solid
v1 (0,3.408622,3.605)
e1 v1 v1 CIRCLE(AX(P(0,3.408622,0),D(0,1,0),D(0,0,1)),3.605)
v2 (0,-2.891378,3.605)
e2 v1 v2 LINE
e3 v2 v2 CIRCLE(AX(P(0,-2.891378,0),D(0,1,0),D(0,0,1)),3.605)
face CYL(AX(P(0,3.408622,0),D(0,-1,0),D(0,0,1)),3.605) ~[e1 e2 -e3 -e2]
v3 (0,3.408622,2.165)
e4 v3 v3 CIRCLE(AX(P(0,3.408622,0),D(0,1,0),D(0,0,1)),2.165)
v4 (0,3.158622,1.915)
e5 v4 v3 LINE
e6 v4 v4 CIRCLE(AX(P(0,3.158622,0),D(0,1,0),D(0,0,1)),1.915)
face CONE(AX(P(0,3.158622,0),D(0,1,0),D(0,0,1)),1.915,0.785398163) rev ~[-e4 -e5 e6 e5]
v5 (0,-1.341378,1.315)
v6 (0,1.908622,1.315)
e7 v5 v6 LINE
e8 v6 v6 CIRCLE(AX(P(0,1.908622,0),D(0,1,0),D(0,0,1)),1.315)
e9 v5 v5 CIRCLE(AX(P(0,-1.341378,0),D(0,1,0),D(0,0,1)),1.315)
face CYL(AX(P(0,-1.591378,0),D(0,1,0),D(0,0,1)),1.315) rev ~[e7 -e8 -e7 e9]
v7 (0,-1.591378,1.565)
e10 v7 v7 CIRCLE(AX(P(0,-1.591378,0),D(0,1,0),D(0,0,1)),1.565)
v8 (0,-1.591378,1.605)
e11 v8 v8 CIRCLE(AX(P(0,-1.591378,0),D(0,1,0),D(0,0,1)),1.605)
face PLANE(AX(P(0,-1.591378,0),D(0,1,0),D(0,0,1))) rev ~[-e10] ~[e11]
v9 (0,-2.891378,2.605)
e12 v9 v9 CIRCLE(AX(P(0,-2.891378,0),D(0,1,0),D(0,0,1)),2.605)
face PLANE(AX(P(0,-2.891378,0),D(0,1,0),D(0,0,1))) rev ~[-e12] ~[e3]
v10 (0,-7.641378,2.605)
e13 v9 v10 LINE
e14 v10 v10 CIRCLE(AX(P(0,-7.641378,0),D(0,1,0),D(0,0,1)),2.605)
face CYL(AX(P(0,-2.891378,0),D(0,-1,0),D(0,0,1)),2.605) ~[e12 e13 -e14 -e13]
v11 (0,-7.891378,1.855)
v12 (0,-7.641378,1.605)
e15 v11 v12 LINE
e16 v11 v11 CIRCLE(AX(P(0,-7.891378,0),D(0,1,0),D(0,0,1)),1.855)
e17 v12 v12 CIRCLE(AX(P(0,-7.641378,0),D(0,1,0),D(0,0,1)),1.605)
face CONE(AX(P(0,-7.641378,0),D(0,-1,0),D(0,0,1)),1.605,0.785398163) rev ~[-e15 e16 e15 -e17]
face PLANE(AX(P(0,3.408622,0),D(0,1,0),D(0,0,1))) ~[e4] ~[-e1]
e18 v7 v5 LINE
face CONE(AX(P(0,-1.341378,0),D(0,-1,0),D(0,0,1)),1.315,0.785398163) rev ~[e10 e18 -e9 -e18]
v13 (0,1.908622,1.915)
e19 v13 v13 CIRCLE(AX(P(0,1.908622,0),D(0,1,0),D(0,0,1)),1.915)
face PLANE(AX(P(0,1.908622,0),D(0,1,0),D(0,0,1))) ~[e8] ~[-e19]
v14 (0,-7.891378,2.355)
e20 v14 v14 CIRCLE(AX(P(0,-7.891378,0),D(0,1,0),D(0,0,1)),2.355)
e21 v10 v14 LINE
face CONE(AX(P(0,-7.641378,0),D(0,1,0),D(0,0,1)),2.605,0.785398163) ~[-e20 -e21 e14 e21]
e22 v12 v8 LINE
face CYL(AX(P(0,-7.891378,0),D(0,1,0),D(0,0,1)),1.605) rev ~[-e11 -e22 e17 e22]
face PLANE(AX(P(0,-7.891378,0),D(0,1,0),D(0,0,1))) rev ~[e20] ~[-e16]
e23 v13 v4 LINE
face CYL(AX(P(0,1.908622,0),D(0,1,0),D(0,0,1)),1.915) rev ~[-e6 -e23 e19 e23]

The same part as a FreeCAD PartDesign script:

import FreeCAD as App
import Part
import Sketcher

V = App.Vector
Q = App.Units.Quantity


def edges_at(feature, points):
    """Names of the edges that pass closest to the given points."""
    edges = feature.Shape.Edges
    near = lambda p: min(range(len(edges)), key=lambda i: edges[i].distToShape(Part.Vertex(*p))[0])
    return sorted({f"Edge{near(p) + 1}" for p in points})

doc = App.newDocument("Part")
body = doc.addObject("PartDesign::Body", "Body")

# Sketch on YZ plane
sketch1 = doc.addObject("Sketcher::SketchObject", "Sketch")
body.addObject(sketch1)
sketch1.AttachmentSupport = (doc.YZ_Plane, [""])
sketch1.MapMode = "FlatFace"
sketch1.addGeometry(Part.LineSegment(V(-2.89, 2.6, 0), V(-7.89, 2.6, 0)), False)
sketch1.addGeometry(Part.LineSegment(V(-7.89, 2.6, 0), V(-7.89, 1.6, 0)), False)
sketch1.addGeometry(Part.LineSegment(V(-7.89, 1.6, 0), V(-1.59, 1.6, 0)), False)
sketch1.addGeometry(Part.LineSegment(V(-1.59, 1.6, 0), V(-1.59, 1.31, 0)), False)
sketch1.addGeometry(Part.LineSegment(V(-1.59, 1.31, 0), V(1.91, 1.31, 0)), False)
sketch1.addGeometry(Part.LineSegment(V(1.91, 1.31, 0), V(1.91, 1.92, 0)), False)
sketch1.addGeometry(Part.LineSegment(V(1.91, 1.92, 0), V(3.41, 1.92, 0)), False)
sketch1.addGeometry(Part.LineSegment(V(3.41, 1.92, 0), V(3.41, 3.6, 0)), False)
sketch1.addGeometry(Part.LineSegment(V(3.41, 3.6, 0), V(-2.89, 3.6, 0)), False)
sketch1.addGeometry(Part.LineSegment(V(-2.89, 3.6, 0), V(-2.89, 2.6, 0)), False)
sketch1.addConstraint(Sketcher.Constraint("Coincident", 0, 2, 1, 1))
sketch1.addConstraint(Sketcher.Constraint("Coincident", 1, 2, 2, 1))
sketch1.addConstraint(Sketcher.Constraint("Coincident", 2, 2, 3, 1))
sketch1.addConstraint(Sketcher.Constraint("Coincident", 3, 2, 4, 1))
sketch1.addConstraint(Sketcher.Constraint("Coincident", 4, 2, 5, 1))
sketch1.addConstraint(Sketcher.Constraint("Coincident", 5, 2, 6, 1))
sketch1.addConstraint(Sketcher.Constraint("Coincident", 6, 2, 7, 1))
sketch1.addConstraint(Sketcher.Constraint("Coincident", 7, 2, 8, 1))
sketch1.addConstraint(Sketcher.Constraint("Coincident", 8, 2, 9, 1))
sketch1.addConstraint(Sketcher.Constraint("Coincident", 9, 2, 0, 1))
sketch1.addConstraint(Sketcher.Constraint("Horizontal", 0))
sketch1.addConstraint(Sketcher.Constraint("Vertical", 1))
sketch1.addConstraint(Sketcher.Constraint("Horizontal", 2))
sketch1.addConstraint(Sketcher.Constraint("Vertical", 3))
sketch1.addConstraint(Sketcher.Constraint("Horizontal", 4))
sketch1.addConstraint(Sketcher.Constraint("Vertical", 5))
sketch1.addConstraint(Sketcher.Constraint("Horizontal", 6))
sketch1.addConstraint(Sketcher.Constraint("Vertical", 7))
sketch1.addConstraint(Sketcher.Constraint("Horizontal", 8))
sketch1.addConstraint(Sketcher.Constraint("Vertical", 9))
sketch1.addConstraint(Sketcher.Constraint("Equal", 2, 8))
sketch1.addConstraint(Sketcher.Constraint("Equal", 1, 9))
sketch1.addConstraint(Sketcher.Constraint("DistanceX", 0, 2, 0, 1, Q("5 mm")))
sketch1.addConstraint(Sketcher.Constraint("DistanceY", 1, 2, 1, 1, Q("1 mm")))
sketch1.addConstraint(Sketcher.Constraint("DistanceX", 2, 1, 2, 2, Q("6.3 mm")))
sketch1.addConstraint(Sketcher.Constraint("DistanceX", 4, 1, 4, 2, Q("3.5 mm")))
sketch1.addConstraint(Sketcher.Constraint("DistanceY", 5, 1, 5, 2, Q("0.6 mm")))
sketch1.addConstraint(Sketcher.Constraint("DistanceY", 3, 2, 3, 1, Q("0.29 mm")))
sketch1.addConstraint(Sketcher.Constraint("DistanceY", -1, 1, 0, 2, Q("2.605 mm")))
sketch1.addConstraint(Sketcher.Constraint("DistanceX", -1, 1, 6, 2, Q("3.408622 mm")))
revolution = doc.addObject("PartDesign::Revolution", "Revolution")
body.addObject(revolution)
revolution.Profile = sketch1
revolution.ReferenceAxis = (sketch1, ["H_Axis"])
revolution.Angle = 360
doc.recompute()

chamfer = doc.addObject("PartDesign::Chamfer", "Chamfer")
body.addObject(chamfer)
chamfer.Base = (revolution, edges_at(revolution, [
    (0, 3.409, -1.915),
    (0, -7.891, -1.605),
    (0, -7.891, -2.605),
    (0, -1.591, -1.315),
]))
chamfer.Size = 0.25

doc.recompute()
